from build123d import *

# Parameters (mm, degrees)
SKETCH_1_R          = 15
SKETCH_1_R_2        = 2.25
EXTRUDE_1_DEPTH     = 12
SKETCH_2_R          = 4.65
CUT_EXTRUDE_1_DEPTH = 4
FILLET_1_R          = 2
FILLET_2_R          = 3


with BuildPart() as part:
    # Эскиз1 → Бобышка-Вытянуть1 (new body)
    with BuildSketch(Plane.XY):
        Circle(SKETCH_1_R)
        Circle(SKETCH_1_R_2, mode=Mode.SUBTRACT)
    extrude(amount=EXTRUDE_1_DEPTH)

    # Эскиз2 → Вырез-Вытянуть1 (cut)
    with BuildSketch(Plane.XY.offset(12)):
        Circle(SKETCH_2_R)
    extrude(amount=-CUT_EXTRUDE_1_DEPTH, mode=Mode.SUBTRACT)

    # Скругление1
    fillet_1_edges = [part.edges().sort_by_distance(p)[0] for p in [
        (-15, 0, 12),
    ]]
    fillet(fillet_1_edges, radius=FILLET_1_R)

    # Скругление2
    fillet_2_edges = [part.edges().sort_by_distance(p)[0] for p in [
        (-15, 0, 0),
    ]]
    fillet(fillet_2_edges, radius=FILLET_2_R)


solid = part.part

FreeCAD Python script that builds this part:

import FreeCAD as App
import Part
import Sketcher
from FreeCAD import Vector


def edges_at(feature, points):
    """Names of the edges that pass closest to the given points."""
    edges = feature.Shape.Edges
    near = lambda p: min(range(len(edges)), key=lambda i: edges[i].distToShape(Part.Vertex(*p))[0])
    return sorted({f"Edge{near(p) + 1}" for p in points})

doc = App.newDocument("Part")
body = doc.addObject("PartDesign::Body", "Body")

sketch1 = body.newObject("Sketcher::SketchObject", "Sketch")
sketch1.AttachmentSupport = (doc.getObject("XY_Plane"), [""])
sketch1.MapMode = "FlatFace"
sketch1.addGeometry([
    Part.Circle(Vector(0, 0, 0), Vector(0, 0, 1), 15),
    Part.Circle(Vector(0, 0, 0), Vector(0, 0, 1), 2.2),
], False)
sketch1.addConstraint([
    Sketcher.Constraint("Coincident", 0, 3, -1, 1),
    Sketcher.Constraint("Coincident", 1, 3, -1, 1),
    Sketcher.Constraint("Diameter", 0, 30.0),
    Sketcher.Constraint("Diameter", 1, 4.5),
])
pad1 = body.newObject("PartDesign::Pad", "Pad")
pad1.Profile = sketch1
pad1.Length = 12

sketch2 = body.newObject("Sketcher::SketchObject", "Sketch001")
sketch2.AttachmentSupport = (doc.getObject("XY_Plane"), [""])
sketch2.MapMode = "FlatFace"
sketch2.AttachmentOffset = App.Placement(Vector(0, 0, 12), App.Rotation())
sketch2.addGeometry(Part.Circle(Vector(0, 0, 0), Vector(0, 0, 1), 4.7), False)
sketch2.addConstraint([
    Sketcher.Constraint("Coincident", 0, 3, -1, 1),
    Sketcher.Constraint("Diameter", 0, 9.3),
])
pocket1 = body.newObject("PartDesign::Pocket", "Pocket")
pocket1.Profile = sketch2
pocket1.Length = 4
doc.recompute()

fillet = body.newObject("PartDesign::Fillet", "Fillet")
fillet.Base = (pocket1, edges_at(pocket1, [(-15, 0, 12)]))
fillet.Radius = 2
doc.recompute()

fillet2 = body.newObject("PartDesign::Fillet", "Fillet001")
fillet2.Base = (fillet, edges_at(fillet, [(-15, 0, 0)]))
fillet2.Radius = 3

doc.recompute()
